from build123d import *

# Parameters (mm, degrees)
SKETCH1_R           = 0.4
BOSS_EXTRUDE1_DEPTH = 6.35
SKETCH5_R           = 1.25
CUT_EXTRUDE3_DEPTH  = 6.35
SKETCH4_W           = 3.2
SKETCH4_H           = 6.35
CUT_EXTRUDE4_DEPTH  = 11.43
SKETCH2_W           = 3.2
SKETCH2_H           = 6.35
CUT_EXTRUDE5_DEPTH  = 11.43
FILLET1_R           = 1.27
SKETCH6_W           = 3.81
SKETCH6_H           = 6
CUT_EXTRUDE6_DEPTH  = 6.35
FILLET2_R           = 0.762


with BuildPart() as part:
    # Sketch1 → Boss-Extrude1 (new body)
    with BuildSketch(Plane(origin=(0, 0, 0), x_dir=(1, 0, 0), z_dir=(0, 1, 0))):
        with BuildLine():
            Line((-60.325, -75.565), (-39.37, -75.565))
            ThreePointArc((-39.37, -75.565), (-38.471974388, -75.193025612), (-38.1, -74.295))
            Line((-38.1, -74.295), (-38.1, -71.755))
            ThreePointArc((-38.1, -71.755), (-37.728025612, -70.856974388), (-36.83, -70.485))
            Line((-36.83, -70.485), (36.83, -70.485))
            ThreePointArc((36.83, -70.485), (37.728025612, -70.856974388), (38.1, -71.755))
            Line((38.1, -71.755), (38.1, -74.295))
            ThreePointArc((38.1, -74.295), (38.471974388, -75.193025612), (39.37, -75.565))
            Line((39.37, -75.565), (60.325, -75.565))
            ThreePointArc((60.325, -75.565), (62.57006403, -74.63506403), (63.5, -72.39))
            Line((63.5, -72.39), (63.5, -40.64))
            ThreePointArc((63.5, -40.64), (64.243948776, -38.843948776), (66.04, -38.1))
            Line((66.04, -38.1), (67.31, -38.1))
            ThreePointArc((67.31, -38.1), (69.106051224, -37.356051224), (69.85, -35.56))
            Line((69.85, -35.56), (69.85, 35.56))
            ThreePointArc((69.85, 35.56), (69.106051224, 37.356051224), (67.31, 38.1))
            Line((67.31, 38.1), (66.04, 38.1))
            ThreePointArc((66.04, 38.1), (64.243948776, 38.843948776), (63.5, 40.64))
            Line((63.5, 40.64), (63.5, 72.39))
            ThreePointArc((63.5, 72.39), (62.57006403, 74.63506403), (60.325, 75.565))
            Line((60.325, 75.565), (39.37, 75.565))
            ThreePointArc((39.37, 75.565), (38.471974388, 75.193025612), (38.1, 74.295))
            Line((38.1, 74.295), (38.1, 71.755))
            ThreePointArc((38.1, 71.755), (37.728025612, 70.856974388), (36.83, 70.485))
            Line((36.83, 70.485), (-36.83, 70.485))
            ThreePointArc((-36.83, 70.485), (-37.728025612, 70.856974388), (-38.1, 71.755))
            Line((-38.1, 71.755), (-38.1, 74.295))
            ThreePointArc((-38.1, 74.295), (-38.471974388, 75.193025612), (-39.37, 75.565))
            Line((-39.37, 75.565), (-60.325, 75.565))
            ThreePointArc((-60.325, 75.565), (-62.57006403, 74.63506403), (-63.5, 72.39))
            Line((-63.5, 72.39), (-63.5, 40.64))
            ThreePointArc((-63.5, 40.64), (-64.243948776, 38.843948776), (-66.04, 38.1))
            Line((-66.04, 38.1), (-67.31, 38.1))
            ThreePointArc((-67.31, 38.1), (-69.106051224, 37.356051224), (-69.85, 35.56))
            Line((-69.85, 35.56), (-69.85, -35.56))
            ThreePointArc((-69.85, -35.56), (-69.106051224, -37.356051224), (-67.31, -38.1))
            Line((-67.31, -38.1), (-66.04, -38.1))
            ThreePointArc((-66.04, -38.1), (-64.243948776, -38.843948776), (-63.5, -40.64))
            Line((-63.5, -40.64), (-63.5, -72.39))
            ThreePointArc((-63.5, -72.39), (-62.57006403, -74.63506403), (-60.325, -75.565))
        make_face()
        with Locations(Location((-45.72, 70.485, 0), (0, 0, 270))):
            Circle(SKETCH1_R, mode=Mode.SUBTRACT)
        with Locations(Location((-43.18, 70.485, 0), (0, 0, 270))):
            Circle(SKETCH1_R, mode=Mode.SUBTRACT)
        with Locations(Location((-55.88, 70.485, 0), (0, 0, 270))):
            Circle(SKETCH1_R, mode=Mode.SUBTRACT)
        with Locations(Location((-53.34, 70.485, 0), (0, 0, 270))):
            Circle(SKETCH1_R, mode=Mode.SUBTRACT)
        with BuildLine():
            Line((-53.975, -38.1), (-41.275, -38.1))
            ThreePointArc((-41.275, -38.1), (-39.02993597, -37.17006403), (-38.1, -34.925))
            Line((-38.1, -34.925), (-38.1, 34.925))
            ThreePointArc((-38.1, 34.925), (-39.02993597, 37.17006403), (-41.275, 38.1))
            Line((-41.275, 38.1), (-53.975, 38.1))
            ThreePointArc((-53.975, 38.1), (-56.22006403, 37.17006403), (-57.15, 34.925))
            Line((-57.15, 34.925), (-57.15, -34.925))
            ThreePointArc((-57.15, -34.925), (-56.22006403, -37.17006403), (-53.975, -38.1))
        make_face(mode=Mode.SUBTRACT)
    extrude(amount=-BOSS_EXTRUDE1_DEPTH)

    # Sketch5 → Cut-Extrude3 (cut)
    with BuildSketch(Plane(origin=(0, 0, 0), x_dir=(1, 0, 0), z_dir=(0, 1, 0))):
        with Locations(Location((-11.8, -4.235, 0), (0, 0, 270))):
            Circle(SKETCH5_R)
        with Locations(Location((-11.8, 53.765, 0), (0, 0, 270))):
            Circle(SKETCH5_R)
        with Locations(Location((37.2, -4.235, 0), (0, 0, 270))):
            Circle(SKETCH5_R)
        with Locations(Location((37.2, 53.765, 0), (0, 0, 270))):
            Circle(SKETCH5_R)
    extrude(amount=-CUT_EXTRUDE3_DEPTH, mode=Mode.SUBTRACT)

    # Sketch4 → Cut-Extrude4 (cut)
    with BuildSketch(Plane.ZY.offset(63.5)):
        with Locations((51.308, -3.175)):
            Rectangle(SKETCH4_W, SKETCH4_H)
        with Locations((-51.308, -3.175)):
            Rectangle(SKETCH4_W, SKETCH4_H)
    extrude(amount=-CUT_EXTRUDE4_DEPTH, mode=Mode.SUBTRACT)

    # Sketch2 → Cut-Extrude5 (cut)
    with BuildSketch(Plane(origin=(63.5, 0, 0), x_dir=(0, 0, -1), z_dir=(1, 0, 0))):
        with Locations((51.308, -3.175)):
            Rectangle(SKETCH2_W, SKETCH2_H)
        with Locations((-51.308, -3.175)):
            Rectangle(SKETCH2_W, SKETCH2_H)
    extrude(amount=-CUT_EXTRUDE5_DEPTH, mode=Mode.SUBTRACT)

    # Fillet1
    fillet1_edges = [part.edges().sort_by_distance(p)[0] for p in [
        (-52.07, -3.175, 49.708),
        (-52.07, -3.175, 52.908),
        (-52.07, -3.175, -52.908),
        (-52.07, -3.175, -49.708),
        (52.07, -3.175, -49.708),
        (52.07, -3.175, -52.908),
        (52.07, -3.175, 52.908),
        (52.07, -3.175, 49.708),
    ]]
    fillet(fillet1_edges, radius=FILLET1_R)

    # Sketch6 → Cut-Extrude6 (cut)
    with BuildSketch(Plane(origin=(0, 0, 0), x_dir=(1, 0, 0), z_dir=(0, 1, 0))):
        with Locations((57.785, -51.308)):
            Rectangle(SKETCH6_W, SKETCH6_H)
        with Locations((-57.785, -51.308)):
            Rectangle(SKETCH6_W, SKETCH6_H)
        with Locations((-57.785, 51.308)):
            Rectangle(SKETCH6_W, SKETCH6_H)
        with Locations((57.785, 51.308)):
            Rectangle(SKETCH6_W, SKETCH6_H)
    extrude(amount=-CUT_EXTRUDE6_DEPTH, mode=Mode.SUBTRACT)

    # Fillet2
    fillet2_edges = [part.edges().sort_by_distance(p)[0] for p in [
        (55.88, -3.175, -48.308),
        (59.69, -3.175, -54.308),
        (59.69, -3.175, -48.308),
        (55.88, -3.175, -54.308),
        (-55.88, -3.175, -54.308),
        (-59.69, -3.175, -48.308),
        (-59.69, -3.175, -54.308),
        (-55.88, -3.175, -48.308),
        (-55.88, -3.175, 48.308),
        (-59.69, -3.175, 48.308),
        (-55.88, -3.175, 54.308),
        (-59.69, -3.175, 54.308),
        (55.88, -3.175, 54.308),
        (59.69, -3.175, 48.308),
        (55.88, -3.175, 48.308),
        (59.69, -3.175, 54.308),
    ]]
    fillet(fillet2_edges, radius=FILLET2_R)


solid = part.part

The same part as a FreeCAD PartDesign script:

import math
import FreeCAD as App
import Part
import Sketcher
from FreeCAD import Vector
Q = App.Units.Quantity


def edges_at(feature, points):
    """Names of the edges that pass closest to the given points."""
    edges = feature.Shape.Edges
    near = lambda p: min(range(len(edges)), key=lambda i: edges[i].distToShape(Part.Vertex(*p))[0])
    return sorted({f"Edge{near(p) + 1}" for p in points})

doc = App.newDocument("Part")
body = doc.addObject("PartDesign::Body", "Body")

# Sketch on XZ plane
sketch1 = body.newObject("Sketcher::SketchObject", "Sketch")
sketch1.AttachmentSupport = (doc.getObject("XZ_Plane"), [""])
sketch1.MapMode = "FlatFace"
sketch1.addGeometry(Part.LineSegment(Vector(-60.325, 75.565, 0), Vector(-39.37, 75.565, 0)), False)
sketch1.addGeometry(Part.ArcOfCircle(Part.Circle(Vector(-39.37, 74.295, 0), Vector(0, 0, 1), 1.27), math.radians(0), math.radians(90)), False)
sketch1.addGeometry(Part.LineSegment(Vector(-38.1, 74.295, 0), Vector(-38.1, 71.755, 0)), False)
sketch1.addGeometry(Part.ArcOfCircle(Part.Circle(Vector(-36.83, 71.755, 0), Vector(0, 0, 1), 1.27), math.radians(180), math.radians(270)), False)
sketch1.addGeometry(Part.LineSegment(Vector(-36.83, 70.485, 0), Vector(36.83, 70.485, 0)), False)
sketch1.addGeometry(Part.ArcOfCircle(Part.Circle(Vector(36.83, 71.755, 0), Vector(0, 0, 1), 1.27), math.radians(-90), math.radians(0)), False)
sketch1.addGeometry(Part.LineSegment(Vector(38.1, 71.755, 0), Vector(38.1, 74.295, 0)), False)
sketch1.addGeometry(Part.ArcOfCircle(Part.Circle(Vector(39.37, 74.295, 0), Vector(0, 0, 1), 1.27), math.radians(90), math.radians(180)), False)
sketch1.addGeometry(Part.LineSegment(Vector(39.37, 75.565, 0), Vector(60.325, 75.565, 0)), False)
sketch1.addGeometry(Part.ArcOfCircle(Part.Circle(Vector(60.325, 72.39, 0), Vector(0, 0, 1), 3.175), math.radians(0), math.radians(90)), False)
sketch1.addGeometry(Part.LineSegment(Vector(63.5, 72.39, 0), Vector(63.5, 40.64, 0)), False)
sketch1.addGeometry(Part.ArcOfCircle(Part.Circle(Vector(66.04, 40.64, 0), Vector(0, 0, 1), 2.54), math.radians(-180), math.radians(-90)), False)
sketch1.addGeometry(Part.LineSegment(Vector(66.04, 38.1, 0), Vector(67.31, 38.1, 0)), False)
sketch1.addGeometry(Part.ArcOfCircle(Part.Circle(Vector(67.31, 35.56, 0), Vector(0, 0, 1), 2.54), math.radians(0), math.radians(90)), False)
sketch1.addGeometry(Part.LineSegment(Vector(69.85, 35.56, 0), Vector(69.85, -35.56, 0)), False)
sketch1.addGeometry(Part.ArcOfCircle(Part.Circle(Vector(67.31, -35.56, 0), Vector(0, 0, 1), 2.54), math.radians(-90), math.radians(0)), False)
sketch1.addGeometry(Part.LineSegment(Vector(67.31, -38.1, 0), Vector(66.04, -38.1, 0)), False)
sketch1.addGeometry(Part.ArcOfCircle(Part.Circle(Vector(66.04, -40.64, 0), Vector(0, 0, 1), 2.54), math.radians(90), math.radians(180)), False)
sketch1.addGeometry(Part.LineSegment(Vector(63.5, -40.64, 0), Vector(63.5, -72.39, 0)), False)
sketch1.addGeometry(Part.ArcOfCircle(Part.Circle(Vector(60.325, -72.39, 0), Vector(0, 0, 1), 3.175), math.radians(-90), math.radians(0)), False)
sketch1.addGeometry(Part.LineSegment(Vector(60.325, -75.565, 0), Vector(39.37, -75.565, 0)), False)
sketch1.addGeometry(Part.ArcOfCircle(Part.Circle(Vector(39.37, -74.295, 0), Vector(0, 0, 1), 1.27), math.radians(180), math.radians(270)), False)
sketch1.addGeometry(Part.LineSegment(Vector(38.1, -74.295, 0), Vector(38.1, -71.755, 0)), False)
sketch1.addGeometry(Part.ArcOfCircle(Part.Circle(Vector(36.83, -71.755, 0), Vector(0, 0, 1), 1.27), math.radians(0), math.radians(90)), False)
sketch1.addGeometry(Part.LineSegment(Vector(36.83, -70.485, 0), Vector(-36.83, -70.485, 0)), False)
sketch1.addGeometry(Part.ArcOfCircle(Part.Circle(Vector(-36.83, -71.755, 0), Vector(0, 0, 1), 1.27), math.radians(90), math.radians(180)), False)
sketch1.addGeometry(Part.LineSegment(Vector(-38.1, -71.755, 0), Vector(-38.1, -74.295, 0)), False)
sketch1.addGeometry(Part.ArcOfCircle(Part.Circle(Vector(-39.37, -74.295, 0), Vector(0, 0, 1), 1.27), math.radians(-90), math.radians(0)), False)
sketch1.addGeometry(Part.LineSegment(Vector(-39.37, -75.565, 0), Vector(-60.325, -75.565, 0)), False)
sketch1.addGeometry(Part.ArcOfCircle(Part.Circle(Vector(-60.325, -72.39, 0), Vector(0, 0, 1), 3.175), math.radians(-180), math.radians(-90)), False)
sketch1.addGeometry(Part.LineSegment(Vector(-63.5, -72.39, 0), Vector(-63.5, -40.64, 0)), False)
sketch1.addGeometry(Part.ArcOfCircle(Part.Circle(Vector(-66.04, -40.64, 0), Vector(0, 0, 1), 2.54), math.radians(0), math.radians(90)), False)
sketch1.addGeometry(Part.LineSegment(Vector(-66.04, -38.1, 0), Vector(-67.31, -38.1, 0)), False)
sketch1.addGeometry(Part.ArcOfCircle(Part.Circle(Vector(-67.31, -35.56, 0), Vector(0, 0, 1), 2.54), math.radians(-180), math.radians(-90)), False)
sketch1.addGeometry(Part.LineSegment(Vector(-69.85, -35.56, 0), Vector(-69.85, 35.56, 0)), False)
sketch1.addGeometry(Part.ArcOfCircle(Part.Circle(Vector(-67.31, 35.56, 0), Vector(0, 0, 1), 2.54), math.radians(90), math.radians(180)), False)
sketch1.addGeometry(Part.LineSegment(Vector(-67.31, 38.1, 0), Vector(-66.04, 38.1, 0)), False)
sketch1.addGeometry(Part.ArcOfCircle(Part.Circle(Vector(-66.04, 40.64, 0), Vector(0, 0, 1), 2.54), math.radians(-90), math.radians(0)), False)
sketch1.addGeometry(Part.LineSegment(Vector(-63.5, 40.64, 0), Vector(-63.5, 72.39, 0)), False)
sketch1.addGeometry(Part.ArcOfCircle(Part.Circle(Vector(-60.325, 72.39, 0), Vector(0, 0, 1), 3.175), math.radians(90), math.radians(180)), False)
sketch1.addGeometry(Part.LineSegment(Vector(-41.275, 38.1, 0), Vector(-53.975, 38.1, 0)), False)
sketch1.addGeometry(Part.ArcOfCircle(Part.Circle(Vector(-53.975, 34.925, 0), Vector(0, 0, 1), 3.175), math.radians(90), math.radians(180)), False)
sketch1.addGeometry(Part.LineSegment(Vector(-57.15, 34.925, 0), Vector(-57.15, -34.925, 0)), False)
sketch1.addGeometry(Part.ArcOfCircle(Part.Circle(Vector(-53.975, -34.925, 0), Vector(0, 0, 1), 3.175), math.radians(-180), math.radians(-90)), False)
sketch1.addGeometry(Part.LineSegment(Vector(-53.975, -38.1, 0), Vector(-41.275, -38.1, 0)), False)
sketch1.addGeometry(Part.ArcOfCircle(Part.Circle(Vector(-41.275, -34.925, 0), Vector(0, 0, 1), 3.175), math.radians(-90), math.radians(0)), False)
sketch1.addGeometry(Part.LineSegment(Vector(-38.1, -34.925, 0), Vector(-38.1, 34.925, 0)), False)
sketch1.addGeometry(Part.ArcOfCircle(Part.Circle(Vector(-41.275, 34.925, 0), Vector(0, 0, 1), 3.175), math.radians(0), math.radians(90)), False)
sketch1.addGeometry(Part.Circle(Vector(-55.88, -70.485, 0), Vector(0, 0, 1), 0.4), False)
sketch1.addGeometry(Part.Circle(Vector(-53.34, -70.485, 0), Vector(0, 0, 1), 0.4), False)
sketch1.addGeometry(Part.Circle(Vector(-45.72, -70.485, 0), Vector(0, 0, 1), 0.4), False)
sketch1.addGeometry(Part.Circle(Vector(-43.18, -70.485, 0), Vector(0, 0, 1), 0.4), False)
sketch1.addConstraint(Sketcher.Constraint("Tangent", 0, 2, 1, 2))
sketch1.addConstraint(Sketcher.Constraint("Tangent", 1, 1, 2, 1))
sketch1.addConstraint(Sketcher.Constraint("Tangent", 2, 2, 3, 1))
sketch1.addConstraint(Sketcher.Constraint("Tangent", 3, 2, 4, 1))
sketch1.addConstraint(Sketcher.Constraint("Tangent", 4, 2, 5, 1))
sketch1.addConstraint(Sketcher.Constraint("Tangent", 5, 2, 6, 1))
sketch1.addConstraint(Sketcher.Constraint("Tangent", 6, 2, 7, 2))
sketch1.addConstraint(Sketcher.Constraint("Tangent", 7, 1, 8, 1))
sketch1.addConstraint(Sketcher.Constraint("Tangent", 8, 2, 9, 2))
sketch1.addConstraint(Sketcher.Constraint("Tangent", 9, 1, 10, 1))
sketch1.addConstraint(Sketcher.Constraint("Tangent", 10, 2, 11, 1))
sketch1.addConstraint(Sketcher.Constraint("Tangent", 11, 2, 12, 1))
sketch1.addConstraint(Sketcher.Constraint("Tangent", 12, 2, 13, 2))
sketch1.addConstraint(Sketcher.Constraint("Tangent", 13, 1, 14, 1))
sketch1.addConstraint(Sketcher.Constraint("Tangent", 14, 2, 15, 2))
sketch1.addConstraint(Sketcher.Constraint("Tangent", 15, 1, 16, 1))
sketch1.addConstraint(Sketcher.Constraint("Tangent", 16, 2, 17, 1))
sketch1.addConstraint(Sketcher.Constraint("Tangent", 17, 2, 18, 1))
sketch1.addConstraint(Sketcher.Constraint("Tangent", 18, 2, 19, 2))
sketch1.addConstraint(Sketcher.Constraint("Tangent", 19, 1, 20, 1))
sketch1.addConstraint(Sketcher.Constraint("Tangent", 20, 2, 21, 2))
sketch1.addConstraint(Sketcher.Constraint("Tangent", 21, 1, 22, 1))
sketch1.addConstraint(Sketcher.Constraint("Tangent", 22, 2, 23, 1))
sketch1.addConstraint(Sketcher.Constraint("Tangent", 23, 2, 24, 1))
sketch1.addConstraint(Sketcher.Constraint("Tangent", 24, 2, 25, 1))
sketch1.addConstraint(Sketcher.Constraint("Tangent", 25, 2, 26, 1))
sketch1.addConstraint(Sketcher.Constraint("Tangent", 26, 2, 27, 2))
sketch1.addConstraint(Sketcher.Constraint("Tangent", 27, 1, 28, 1))
sketch1.addConstraint(Sketcher.Constraint("Tangent", 28, 2, 29, 2))
sketch1.addConstraint(Sketcher.Constraint("Tangent", 29, 1, 30, 1))
sketch1.addConstraint(Sketcher.Constraint("Tangent", 30, 2, 31, 1))
sketch1.addConstraint(Sketcher.Constraint("Tangent", 31, 2, 32, 1))
sketch1.addConstraint(Sketcher.Constraint("Tangent", 32, 2, 33, 2))
sketch1.addConstraint(Sketcher.Constraint("Tangent", 33, 1, 34, 1))
sketch1.addConstraint(Sketcher.Constraint("Tangent", 34, 2, 35, 2))
sketch1.addConstraint(Sketcher.Constraint("Tangent", 35, 1, 36, 1))
sketch1.addConstraint(Sketcher.Constraint("Tangent", 36, 2, 37, 1))
sketch1.addConstraint(Sketcher.Constraint("Tangent", 37, 2, 38, 1))
sketch1.addConstraint(Sketcher.Constraint("Tangent", 38, 2, 39, 2))
sketch1.addConstraint(Sketcher.Constraint("Tangent", 39, 1, 0, 1))
sketch1.addConstraint(Sketcher.Constraint("Tangent", 40, 2, 41, 1))
sketch1.addConstraint(Sketcher.Constraint("Tangent", 41, 2, 42, 1))
sketch1.addConstraint(Sketcher.Constraint("Tangent", 42, 2, 43, 1))
sketch1.addConstraint(Sketcher.Constraint("Tangent", 43, 2, 44, 1))
sketch1.addConstraint(Sketcher.Constraint("Tangent", 44, 2, 45, 1))
sketch1.addConstraint(Sketcher.Constraint("Tangent", 45, 2, 46, 1))
sketch1.addConstraint(Sketcher.Constraint("Tangent", 46, 2, 47, 1))
sketch1.addConstraint(Sketcher.Constraint("Tangent", 47, 2, 40, 1))
sketch1.addConstraint(Sketcher.Constraint("Horizontal", 0))
sketch1.addConstraint(Sketcher.Constraint("Vertical", 2))
sketch1.addConstraint(Sketcher.Constraint("Horizontal", 4))
sketch1.addConstraint(Sketcher.Constraint("Vertical", 6))
sketch1.addConstraint(Sketcher.Constraint("Horizontal", 8))
sketch1.addConstraint(Sketcher.Constraint("Vertical", 10))
sketch1.addConstraint(Sketcher.Constraint("Horizontal", 12))
sketch1.addConstraint(Sketcher.Constraint("Vertical", 14))
sketch1.addConstraint(Sketcher.Constraint("Horizontal", 16))
sketch1.addConstraint(Sketcher.Constraint("Vertical", 18))
sketch1.addConstraint(Sketcher.Constraint("Horizontal", 20))
sketch1.addConstraint(Sketcher.Constraint("Vertical", 22))
sketch1.addConstraint(Sketcher.Constraint("Horizontal", 24))
sketch1.addConstraint(Sketcher.Constraint("Vertical", 26))
sketch1.addConstraint(Sketcher.Constraint("Horizontal", 28))
sketch1.addConstraint(Sketcher.Constraint("Vertical", 30))
sketch1.addConstraint(Sketcher.Constraint("Horizontal", 32))
sketch1.addConstraint(Sketcher.Constraint("Vertical", 34))
sketch1.addConstraint(Sketcher.Constraint("Horizontal", 36))
sketch1.addConstraint(Sketcher.Constraint("Vertical", 38))
sketch1.addConstraint(Sketcher.Constraint("Horizontal", 40))
sketch1.addConstraint(Sketcher.Constraint("Vertical", 42))
sketch1.addConstraint(Sketcher.Constraint("Horizontal", 44))
sketch1.addConstraint(Sketcher.Constraint("Vertical", 46))
sketch1.addConstraint(Sketcher.Constraint("Equal", 1, 3))
sketch1.addConstraint(Sketcher.Constraint("Equal", 3, 5))
sketch1.addConstraint(Sketcher.Constraint("Equal", 5, 7))
sketch1.addConstraint(Sketcher.Constraint("Equal", 11, 13))
sketch1.addConstraint(Sketcher.Constraint("Equal", 13, 15))
sketch1.addConstraint(Sketcher.Constraint("Equal", 15, 17))
sketch1.addConstraint(Sketcher.Constraint("Equal", 9, 19))
sketch1.addConstraint(Sketcher.Constraint("Equal", 7, 21))
sketch1.addConstraint(Sketcher.Constraint("Equal", 21, 23))
sketch1.addConstraint(Sketcher.Constraint("Equal", 23, 25))
sketch1.addConstraint(Sketcher.Constraint("Equal", 25, 27))
sketch1.addConstraint(Sketcher.Constraint("Equal", 19, 29))
sketch1.addConstraint(Sketcher.Constraint("Equal", 17, 31))
sketch1.addConstraint(Sketcher.Constraint("Equal", 31, 33))
sketch1.addConstraint(Sketcher.Constraint("Equal", 33, 35))
sketch1.addConstraint(Sketcher.Constraint("Equal", 35, 37))
sketch1.addConstraint(Sketcher.Constraint("Equal", 29, 39))
sketch1.addConstraint(Sketcher.Constraint("Equal", 39, 41))
sketch1.addConstraint(Sketcher.Constraint("Equal", 41, 43))
sketch1.addConstraint(Sketcher.Constraint("Equal", 43, 45))
sketch1.addConstraint(Sketcher.Constraint("Equal", 45, 47))
sketch1.addConstraint(Sketcher.Constraint("Equal", 48, 49))
sketch1.addConstraint(Sketcher.Constraint("Equal", 49, 50))
sketch1.addConstraint(Sketcher.Constraint("Equal", 50, 51))
sketch1.addConstraint(Sketcher.Constraint("Symmetric", 1, 3, 21, 3, -1, 1))
sketch1.addConstraint(Sketcher.Constraint("Symmetric", 5, 3, 25, 3, -1, 1))
sketch1.addConstraint(Sketcher.Constraint("Symmetric", 9, 3, 29, 3, -1, 1))
sketch1.addConstraint(Sketcher.Constraint("Symmetric", 13, 3, 33, 3, -1, 1))
sketch1.addConstraint(Sketcher.Constraint("Symmetric", 17, 3, 37, 3, -1, 1))
sketch1.addConstraint(Sketcher.Constraint("Symmetric", 1, 3, 7, 3, -2))
sketch1.addConstraint(Sketcher.Constraint("Symmetric", 17, 3, 31, 3, -2))
sketch1.addConstraint(Sketcher.Constraint("Horizontal", 48, 3, 49, 3))
sketch1.addConstraint(Sketcher.Constraint("Horizontal", 49, 3, 50, 3))
sketch1.addConstraint(Sketcher.Constraint("Horizontal", 50, 3, 51, 3))
sketch1.addConstraint(Sketcher.Constraint("Horizontal", 51, 3, 23, 2))
sketch1.addConstraint(Sketcher.Constraint("Horizontal", 36, 2, 40, 2))
sketch1.addConstraint(Sketcher.Constraint("Horizontal", 32, 2, 43, 2))
sketch1.addConstraint(Sketcher.Constraint("Vertical", 26, 2, 45, 2))
sketch1.addConstraint(Sketcher.Constraint("Radius", 11, Q("0.1 in")))
sketch1.addConstraint(Sketcher.Constraint("Radius", 1, Q("0.05 in")))
sketch1.addConstraint(Sketcher.Constraint("DistanceX", 4, 1, 4, 2, Q("2.9 in")))
sketch1.addConstraint(Sketcher.Constraint("DistanceX", 40, 2, 40, 1, Q("0.5 in")))
sketch1.addConstraint(Sketcher.Constraint("DistanceY", 2, 2, 2, 1, Q("0.1 in")))
sketch1.addConstraint(Sketcher.Constraint("DistanceY", 14, 2, 14, 1, Q("2.8 in")))
sketch1.addConstraint(Sketcher.Constraint("Radius", 9, Q("0.125 in")))
sketch1.addConstraint(Sketcher.Constraint("DistanceX", 12, 1, 12, 2, Q("0.05 in")))
sketch1.addConstraint(Sketcher.Constraint("DistanceY", 10, 2, 10, 1, Q("1.25 in")))
sketch1.addConstraint(Sketcher.Constraint("DistanceX", -1, 1, 11, 3, Q("2.6 in")))
sketch1.addConstraint(Sketcher.Constraint("DistanceX", 48, 3, -1, 1, Q("2.2 in")))
sketch1.addConstraint(Sketcher.Constraint("DistanceX", 49, 3, -1, 1, Q("2.1 in")))
sketch1.addConstraint(Sketcher.Constraint("DistanceX", 50, 3, -1, 1, Q("1.8 in")))
sketch1.addConstraint(Sketcher.Constraint("DistanceX", 51, 3, -1, 1, Q("1.7 in")))
sketch1.addConstraint(Sketcher.Constraint("Diameter", 48, 0.8))
pad1 = body.newObject("PartDesign::Pad", "Pad")
pad1.Profile = sketch1
pad1.Length = Q("0.25 in")

# Sketch on XZ plane
sketch2 = body.newObject("Sketcher::SketchObject", "Sketch001")
sketch2.AttachmentSupport = (doc.getObject("XZ_Plane"), [""])
sketch2.MapMode = "FlatFace"
sketch2.addGeometry(Part.Circle(Vector(-11.8, 4.235, 0), Vector(0, 0, 1), 1.25), False)
sketch2.addGeometry(Part.Circle(Vector(-11.8, -53.765, 0), Vector(0, 0, 1), 1.25), False)
sketch2.addGeometry(Part.Circle(Vector(37.2, 4.235, 0), Vector(0, 0, 1), 1.25), False)
sketch2.addGeometry(Part.Circle(Vector(37.2, -53.765, 0), Vector(0, 0, 1), 1.25), False)
sketch2.addConstraint(Sketcher.Constraint("Equal", 0, 1))
sketch2.addConstraint(Sketcher.Constraint("Equal", 1, 2))
sketch2.addConstraint(Sketcher.Constraint("Equal", 2, 3))
sketch2.addConstraint(Sketcher.Constraint("Horizontal", 0, 3, 2, 3))
sketch2.addConstraint(Sketcher.Constraint("Horizontal", 1, 3, 3, 3))
sketch2.addConstraint(Sketcher.Constraint("Vertical", 0, 3, 1, 3))
sketch2.addConstraint(Sketcher.Constraint("Vertical", 2, 3, 3, 3))
sketch2.addConstraint(Sketcher.Constraint("Diameter", 0, 2.5))
sketch2.addConstraint(Sketcher.Constraint("DistanceX", 0, 3, -1, 1, 11.8))
sketch2.addConstraint(Sketcher.Constraint("DistanceY", -1, 1, 0, 3, 4.235))
sketch2.addConstraint(Sketcher.Constraint("DistanceY", 1, 3, -1, 1, 53.765))
sketch2.addConstraint(Sketcher.Constraint("DistanceX", -1, 1, 2, 3, 37.2))
pocket1 = body.newObject("PartDesign::Pocket", "Pocket")
pocket1.Profile = sketch2
pocket1.Length = Q("0.25 in")
pocket1.Reversed = True

# Sketch on YZ plane
sketch3 = body.newObject("Sketcher::SketchObject", "Sketch002")
sketch3.AttachmentSupport = (doc.getObject("YZ_Plane"), [""])
sketch3.MapMode = "FlatFace"
sketch3.AttachmentOffset = App.Placement(Vector(0, 0, -2.5 * 25.4), App.Rotation())
sketch3.addGeometry(Part.LineSegment(Vector(0, 49.708, 0), Vector(-6.35, 49.708, 0)), False)
sketch3.addGeometry(Part.LineSegment(Vector(-6.35, 49.708, 0), Vector(-6.35, 52.908, 0)), False)
sketch3.addGeometry(Part.LineSegment(Vector(-6.35, 52.908, 0), Vector(0, 52.908, 0)), False)
sketch3.addGeometry(Part.LineSegment(Vector(0, 52.908, 0), Vector(0, 49.708, 0)), False)
sketch3.addGeometry(Part.LineSegment(Vector(0, -52.908, 0), Vector(-6.35, -52.908, 0)), False)
sketch3.addGeometry(Part.LineSegment(Vector(-6.35, -52.908, 0), Vector(-6.35, -49.708, 0)), False)
sketch3.addGeometry(Part.LineSegment(Vector(-6.35, -49.708, 0), Vector(0, -49.708, 0)), False)
sketch3.addGeometry(Part.LineSegment(Vector(0, -49.708, 0), Vector(0, -52.908, 0)), False)
sketch3.addConstraint(Sketcher.Constraint("Coincident", 0, 2, 1, 1))
sketch3.addConstraint(Sketcher.Constraint("Coincident", 1, 2, 2, 1))
sketch3.addConstraint(Sketcher.Constraint("Coincident", 2, 2, 3, 1))
sketch3.addConstraint(Sketcher.Constraint("Coincident", 3, 2, 0, 1))
sketch3.addConstraint(Sketcher.Constraint("Coincident", 4, 2, 5, 1))
sketch3.addConstraint(Sketcher.Constraint("Coincident", 5, 2, 6, 1))
sketch3.addConstraint(Sketcher.Constraint("Coincident", 6, 2, 7, 1))
sketch3.addConstraint(Sketcher.Constraint("Coincident", 7, 2, 4, 1))
sketch3.addConstraint(Sketcher.Constraint("Horizontal", 0))
sketch3.addConstraint(Sketcher.Constraint("Vertical", 1))
sketch3.addConstraint(Sketcher.Constraint("Horizontal", 2))
sketch3.addConstraint(Sketcher.Constraint("Vertical", 3))
sketch3.addConstraint(Sketcher.Constraint("Horizontal", 4))
sketch3.addConstraint(Sketcher.Constraint("Vertical", 5))
sketch3.addConstraint(Sketcher.Constraint("Horizontal", 6))
sketch3.addConstraint(Sketcher.Constraint("Vertical", 7))
sketch3.addConstraint(Sketcher.Constraint("Symmetric", 3, 2, 6, 2, -1, 1))
sketch3.addConstraint(Sketcher.Constraint("Symmetric", 1, 2, 4, 2, -1))
sketch3.addConstraint(Sketcher.Constraint("PointOnObject", 2, 2, -2))
sketch3.addConstraint(Sketcher.Constraint("DistanceX", 0, 2, 0, 1, Q("0.25 in")))
sketch3.addConstraint(Sketcher.Constraint("DistanceY", 4, 2, 0, 2, Q("4.04 in")))
sketch3.addConstraint(Sketcher.Constraint("DistanceY", 1, 1, 1, 2, 3.2))
pocket2 = body.newObject("PartDesign::Pocket", "Pocket001")
pocket2.Profile = sketch3
pocket2.Length = Q("0.45 in")
pocket2.Reversed = True

# Sketch on YZ plane
sketch4 = body.newObject("Sketcher::SketchObject", "Sketch003")
sketch4.AttachmentSupport = (doc.getObject("YZ_Plane"), [""])
sketch4.MapMode = "FlatFace"
sketch4.AttachmentOffset = App.Placement(Vector(0, 0, 2.5 * 25.4), App.Rotation())
sketch4.addGeometry(Part.LineSegment(Vector(0, -49.708, 0), Vector(-6.35, -49.708, 0)), False)
sketch4.addGeometry(Part.LineSegment(Vector(-6.35, -49.708, 0), Vector(-6.35, -52.908, 0)), False)
sketch4.addGeometry(Part.LineSegment(Vector(-6.35, -52.908, 0), Vector(0, -52.908, 0)), False)
sketch4.addGeometry(Part.LineSegment(Vector(0, -52.908, 0), Vector(0, -49.708, 0)), False)
sketch4.addGeometry(Part.LineSegment(Vector(0, 52.908, 0), Vector(-6.35, 52.908, 0)), False)
sketch4.addGeometry(Part.LineSegment(Vector(-6.35, 52.908, 0), Vector(-6.35, 49.708, 0)), False)
sketch4.addGeometry(Part.LineSegment(Vector(-6.35, 49.708, 0), Vector(0, 49.708, 0)), False)
sketch4.addGeometry(Part.LineSegment(Vector(0, 49.708, 0), Vector(0, 52.908, 0)), False)
sketch4.addConstraint(Sketcher.Constraint("Coincident", 0, 2, 1, 1))
sketch4.addConstraint(Sketcher.Constraint("Coincident", 1, 2, 2, 1))
sketch4.addConstraint(Sketcher.Constraint("Coincident", 2, 2, 3, 1))
sketch4.addConstraint(Sketcher.Constraint("Coincident", 3, 2, 0, 1))
sketch4.addConstraint(Sketcher.Constraint("Coincident", 4, 2, 5, 1))
sketch4.addConstraint(Sketcher.Constraint("Coincident", 5, 2, 6, 1))
sketch4.addConstraint(Sketcher.Constraint("Coincident", 6, 2, 7, 1))
sketch4.addConstraint(Sketcher.Constraint("Coincident", 7, 2, 4, 1))
sketch4.addConstraint(Sketcher.Constraint("Horizontal", 0))
sketch4.addConstraint(Sketcher.Constraint("Vertical", 1))
sketch4.addConstraint(Sketcher.Constraint("Horizontal", 2))
sketch4.addConstraint(Sketcher.Constraint("Vertical", 3))
sketch4.addConstraint(Sketcher.Constraint("Horizontal", 4))
sketch4.addConstraint(Sketcher.Constraint("Vertical", 5))
sketch4.addConstraint(Sketcher.Constraint("Horizontal", 6))
sketch4.addConstraint(Sketcher.Constraint("Vertical", 7))
sketch4.addConstraint(Sketcher.Constraint("Symmetric", 3, 2, 6, 2, -1, 1))
sketch4.addConstraint(Sketcher.Constraint("Symmetric", 1, 2, 4, 2, -1))
sketch4.addConstraint(Sketcher.Constraint("PointOnObject", 2, 2, -2))
sketch4.addConstraint(Sketcher.Constraint("DistanceX", 0, 2, 0, 1, Q("0.25 in")))
sketch4.addConstraint(Sketcher.Constraint("DistanceY", 0, 2, 4, 2, Q("4.04 in")))
sketch4.addConstraint(Sketcher.Constraint("DistanceY", 1, 2, 1, 1, 3.2))
pocket3 = body.newObject("PartDesign::Pocket", "Pocket002")
pocket3.Profile = sketch4
pocket3.Length = Q("0.45 in")
doc.recompute()

fillet = body.newObject("PartDesign::Fillet", "Fillet")
fillet.Base = (pocket3, edges_at(pocket3, [
    (-52.07, -3.175, 49.708),
    (-52.07, -3.175, 52.908),
    (-52.07, -3.175, -52.908),
    (-52.07, -3.175, -49.708),
    (52.07, -3.175, -49.708),
    (52.07, -3.175, -52.908),
    (52.07, -3.175, 52.908),
    (52.07, -3.175, 49.708),
]))
fillet.Radius = Q("0.05 in")

# Sketch on XZ plane
sketch5 = body.newObject("Sketcher::SketchObject", "Sketch004")
sketch5.AttachmentSupport = (doc.getObject("XZ_Plane"), [""])
sketch5.MapMode = "FlatFace"
sketch5.addGeometry(Part.LineSegment(Vector(55.88, 48.308, 0), Vector(55.88, 54.308, 0)), False)
sketch5.addGeometry(Part.LineSegment(Vector(55.88, 54.308, 0), Vector(59.69, 54.308, 0)), False)
sketch5.addGeometry(Part.LineSegment(Vector(59.69, 54.308, 0), Vector(59.69, 48.308, 0)), False)
sketch5.addGeometry(Part.LineSegment(Vector(59.69, 48.308, 0), Vector(55.88, 48.308, 0)), False)
sketch5.addGeometry(Part.LineSegment(Vector(-59.69, 48.308, 0), Vector(-59.69, 54.308, 0)), False)
sketch5.addGeometry(Part.LineSegment(Vector(-59.69, 54.308, 0), Vector(-55.88, 54.308, 0)), False)
sketch5.addGeometry(Part.LineSegment(Vector(-55.88, 54.308, 0), Vector(-55.88, 48.308, 0)), False)
sketch5.addGeometry(Part.LineSegment(Vector(-55.88, 48.308, 0), Vector(-59.69, 48.308, 0)), False)
sketch5.addGeometry(Part.LineSegment(Vector(-59.69, -54.308, 0), Vector(-59.69, -48.308, 0)), False)
sketch5.addGeometry(Part.LineSegment(Vector(-59.69, -48.308, 0), Vector(-55.88, -48.308, 0)), False)
sketch5.addGeometry(Part.LineSegment(Vector(-55.88, -48.308, 0), Vector(-55.88, -54.308, 0)), False)
sketch5.addGeometry(Part.LineSegment(Vector(-55.88, -54.308, 0), Vector(-59.69, -54.308, 0)), False)
sketch5.addGeometry(Part.LineSegment(Vector(55.88, -54.308, 0), Vector(55.88, -48.308, 0)), False)
sketch5.addGeometry(Part.LineSegment(Vector(55.88, -48.308, 0), Vector(59.69, -48.308, 0)), False)
sketch5.addGeometry(Part.LineSegment(Vector(59.69, -48.308, 0), Vector(59.69, -54.308, 0)), False)
sketch5.addGeometry(Part.LineSegment(Vector(59.69, -54.308, 0), Vector(55.88, -54.308, 0)), False)
sketch5.addConstraint(Sketcher.Constraint("Coincident", 0, 2, 1, 1))
sketch5.addConstraint(Sketcher.Constraint("Coincident", 1, 2, 2, 1))
sketch5.addConstraint(Sketcher.Constraint("Coincident", 2, 2, 3, 1))
sketch5.addConstraint(Sketcher.Constraint("Coincident", 3, 2, 0, 1))
sketch5.addConstraint(Sketcher.Constraint("Coincident", 4, 2, 5, 1))
sketch5.addConstraint(Sketcher.Constraint("Coincident", 5, 2, 6, 1))
sketch5.addConstraint(Sketcher.Constraint("Coincident", 6, 2, 7, 1))
sketch5.addConstraint(Sketcher.Constraint("Coincident", 7, 2, 4, 1))
sketch5.addConstraint(Sketcher.Constraint("Coincident", 8, 2, 9, 1))
sketch5.addConstraint(Sketcher.Constraint("Coincident", 9, 2, 10, 1))
sketch5.addConstraint(Sketcher.Constraint("Coincident", 10, 2, 11, 1))
sketch5.addConstraint(Sketcher.Constraint("Coincident", 11, 2, 8, 1))
sketch5.addConstraint(Sketcher.Constraint("Coincident", 12, 2, 13, 1))
sketch5.addConstraint(Sketcher.Constraint("Coincident", 13, 2, 14, 1))
sketch5.addConstraint(Sketcher.Constraint("Coincident", 14, 2, 15, 1))
sketch5.addConstraint(Sketcher.Constraint("Coincident", 15, 2, 12, 1))
sketch5.addConstraint(Sketcher.Constraint("Vertical", 0))
sketch5.addConstraint(Sketcher.Constraint("Horizontal", 1))
sketch5.addConstraint(Sketcher.Constraint("Vertical", 2))
sketch5.addConstraint(Sketcher.Constraint("Horizontal", 3))
sketch5.addConstraint(Sketcher.Constraint("Vertical", 4))
sketch5.addConstraint(Sketcher.Constraint("Horizontal", 5))
sketch5.addConstraint(Sketcher.Constraint("Vertical", 6))
sketch5.addConstraint(Sketcher.Constraint("Horizontal", 7))
sketch5.addConstraint(Sketcher.Constraint("Vertical", 8))
sketch5.addConstraint(Sketcher.Constraint("Horizontal", 9))
sketch5.addConstraint(Sketcher.Constraint("Vertical", 10))
sketch5.addConstraint(Sketcher.Constraint("Horizontal", 11))
sketch5.addConstraint(Sketcher.Constraint("Vertical", 12))
sketch5.addConstraint(Sketcher.Constraint("Horizontal", 13))
sketch5.addConstraint(Sketcher.Constraint("Vertical", 14))
sketch5.addConstraint(Sketcher.Constraint("Horizontal", 15))
sketch5.addConstraint(Sketcher.Constraint("Symmetric", 2, 2, 8, 2, -1, 1))
sketch5.addConstraint(Sketcher.Constraint("Symmetric", 0, 2, 10, 2, -1, 1))
sketch5.addConstraint(Sketcher.Constraint("Symmetric", 6, 2, 12, 2, -1, 1))
sketch5.addConstraint(Sketcher.Constraint("Symmetric", 4, 2, 14, 2, -1, 1))
sketch5.addConstraint(Sketcher.Constraint("Symmetric", 1, 2, 4, 2, -2))
sketch5.addConstraint(Sketcher.Constraint("Symmetric", 3, 2, 6, 2, -2))
sketch5.addConstraint(Sketcher.Constraint("DistanceX", 1, 1, 1, 2, Q("0.15 in")))
sketch5.addConstraint(Sketcher.Constraint("DistanceX", -1, 1, 0, 2, Q("2.2 in")))
sketch5.addConstraint(Sketcher.Constraint("DistanceY", 8, 2, 4, 2, Q("4.04 in")))
sketch5.addConstraint(Sketcher.Constraint("DistanceY", 0, 1, 0, 2, 6.0))
pocket4 = body.newObject("PartDesign::Pocket", "Pocket003")
pocket4.Profile = sketch5
pocket4.Length = Q("0.25 in")
pocket4.Reversed = True
doc.recompute()

fillet2 = body.newObject("PartDesign::Fillet", "Fillet001")
fillet2.Base = (pocket4, edges_at(pocket4, [
    (55.88, -3.175, -48.308),
    (59.69, -3.175, -54.308),
    (59.69, -3.175, -48.308),
    (55.88, -3.175, -54.308),
    (-55.88, -3.175, -54.308),
    (-59.69, -3.175, -48.308),
    (-59.69, -3.175, -54.308),
    (-55.88, -3.175, -48.308),
    (-55.88, -3.175, 48.308),
    (-59.69, -3.175, 48.308),
    (-55.88, -3.175, 54.308),
    (-59.69, -3.175, 54.308),
    (55.88, -3.175, 54.308),
    (59.69, -3.175, 48.308),
    (55.88, -3.175, 48.308),
    (59.69, -3.175, 54.308),
]))
fillet2.Radius = Q("0.03 in")

doc.recompute()
